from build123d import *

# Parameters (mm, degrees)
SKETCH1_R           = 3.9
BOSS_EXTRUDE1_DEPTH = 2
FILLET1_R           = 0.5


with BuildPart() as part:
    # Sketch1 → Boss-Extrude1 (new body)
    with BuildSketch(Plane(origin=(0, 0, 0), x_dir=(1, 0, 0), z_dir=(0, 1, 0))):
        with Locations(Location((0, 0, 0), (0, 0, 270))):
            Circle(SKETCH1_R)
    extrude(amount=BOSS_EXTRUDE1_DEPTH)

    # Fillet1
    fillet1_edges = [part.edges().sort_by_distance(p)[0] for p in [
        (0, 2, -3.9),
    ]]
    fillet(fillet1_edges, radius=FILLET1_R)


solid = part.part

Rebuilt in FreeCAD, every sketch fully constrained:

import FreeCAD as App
import Part
import Sketcher


def edges_at(feature, points):
    """Names of the edges that pass closest to the given points."""
    edges = feature.Shape.Edges
    near = lambda p: min(range(len(edges)), key=lambda i: edges[i].distToShape(Part.Vertex(*p))[0])
    return sorted({f"Edge{near(p) + 1}" for p in points})

doc = App.newDocument("Part")
params = doc.addObject("Spreadsheet::Sheet", "Params")
for row, (alias, value) in enumerate([
    ("sketch1_diameter", "7.8 mm"),
    ("pad1_length", "2 mm"),
    ("fillet_radius", "0.5 mm"),
], start=1):
    params.set(f"A{row}", alias)
    params.set(f"B{row}", "=" + value)
    params.setAlias(f"B{row}", alias)

body = doc.addObject("PartDesign::Body", "Body")

sketch1 = body.newObject("Sketcher::SketchObject", "Sketch")
sketch1.AttachmentSupport = (doc.getObject("XZ_Plane"), [""])
sketch1.MapMode = "FlatFace"
sketch1.addGeometry(Part.Circle(App.Vector(0, 0, 0), App.Vector(0, 0, 1), 3.9), False)
sketch1.addConstraint([
    Sketcher.Constraint("Coincident", 0, 3, -1, 1),
    Sketcher.Constraint("Diameter", 0, 7.8),
])
sketch1.setExpression("Constraints[1]", "Params.sketch1_diameter")
pad1 = body.newObject("PartDesign::Pad", "Pad")
pad1.Profile = sketch1
pad1.setExpression("Length", "Params.pad1_length")
pad1.Reversed = True
doc.recompute()

fillet = body.newObject("PartDesign::Fillet", "Fillet")
fillet.Base = (pad1, edges_at(pad1, [(0, 2, -3.9)]))
fillet.setExpression("Radius", "Params.fillet_radius")

doc.recompute()
